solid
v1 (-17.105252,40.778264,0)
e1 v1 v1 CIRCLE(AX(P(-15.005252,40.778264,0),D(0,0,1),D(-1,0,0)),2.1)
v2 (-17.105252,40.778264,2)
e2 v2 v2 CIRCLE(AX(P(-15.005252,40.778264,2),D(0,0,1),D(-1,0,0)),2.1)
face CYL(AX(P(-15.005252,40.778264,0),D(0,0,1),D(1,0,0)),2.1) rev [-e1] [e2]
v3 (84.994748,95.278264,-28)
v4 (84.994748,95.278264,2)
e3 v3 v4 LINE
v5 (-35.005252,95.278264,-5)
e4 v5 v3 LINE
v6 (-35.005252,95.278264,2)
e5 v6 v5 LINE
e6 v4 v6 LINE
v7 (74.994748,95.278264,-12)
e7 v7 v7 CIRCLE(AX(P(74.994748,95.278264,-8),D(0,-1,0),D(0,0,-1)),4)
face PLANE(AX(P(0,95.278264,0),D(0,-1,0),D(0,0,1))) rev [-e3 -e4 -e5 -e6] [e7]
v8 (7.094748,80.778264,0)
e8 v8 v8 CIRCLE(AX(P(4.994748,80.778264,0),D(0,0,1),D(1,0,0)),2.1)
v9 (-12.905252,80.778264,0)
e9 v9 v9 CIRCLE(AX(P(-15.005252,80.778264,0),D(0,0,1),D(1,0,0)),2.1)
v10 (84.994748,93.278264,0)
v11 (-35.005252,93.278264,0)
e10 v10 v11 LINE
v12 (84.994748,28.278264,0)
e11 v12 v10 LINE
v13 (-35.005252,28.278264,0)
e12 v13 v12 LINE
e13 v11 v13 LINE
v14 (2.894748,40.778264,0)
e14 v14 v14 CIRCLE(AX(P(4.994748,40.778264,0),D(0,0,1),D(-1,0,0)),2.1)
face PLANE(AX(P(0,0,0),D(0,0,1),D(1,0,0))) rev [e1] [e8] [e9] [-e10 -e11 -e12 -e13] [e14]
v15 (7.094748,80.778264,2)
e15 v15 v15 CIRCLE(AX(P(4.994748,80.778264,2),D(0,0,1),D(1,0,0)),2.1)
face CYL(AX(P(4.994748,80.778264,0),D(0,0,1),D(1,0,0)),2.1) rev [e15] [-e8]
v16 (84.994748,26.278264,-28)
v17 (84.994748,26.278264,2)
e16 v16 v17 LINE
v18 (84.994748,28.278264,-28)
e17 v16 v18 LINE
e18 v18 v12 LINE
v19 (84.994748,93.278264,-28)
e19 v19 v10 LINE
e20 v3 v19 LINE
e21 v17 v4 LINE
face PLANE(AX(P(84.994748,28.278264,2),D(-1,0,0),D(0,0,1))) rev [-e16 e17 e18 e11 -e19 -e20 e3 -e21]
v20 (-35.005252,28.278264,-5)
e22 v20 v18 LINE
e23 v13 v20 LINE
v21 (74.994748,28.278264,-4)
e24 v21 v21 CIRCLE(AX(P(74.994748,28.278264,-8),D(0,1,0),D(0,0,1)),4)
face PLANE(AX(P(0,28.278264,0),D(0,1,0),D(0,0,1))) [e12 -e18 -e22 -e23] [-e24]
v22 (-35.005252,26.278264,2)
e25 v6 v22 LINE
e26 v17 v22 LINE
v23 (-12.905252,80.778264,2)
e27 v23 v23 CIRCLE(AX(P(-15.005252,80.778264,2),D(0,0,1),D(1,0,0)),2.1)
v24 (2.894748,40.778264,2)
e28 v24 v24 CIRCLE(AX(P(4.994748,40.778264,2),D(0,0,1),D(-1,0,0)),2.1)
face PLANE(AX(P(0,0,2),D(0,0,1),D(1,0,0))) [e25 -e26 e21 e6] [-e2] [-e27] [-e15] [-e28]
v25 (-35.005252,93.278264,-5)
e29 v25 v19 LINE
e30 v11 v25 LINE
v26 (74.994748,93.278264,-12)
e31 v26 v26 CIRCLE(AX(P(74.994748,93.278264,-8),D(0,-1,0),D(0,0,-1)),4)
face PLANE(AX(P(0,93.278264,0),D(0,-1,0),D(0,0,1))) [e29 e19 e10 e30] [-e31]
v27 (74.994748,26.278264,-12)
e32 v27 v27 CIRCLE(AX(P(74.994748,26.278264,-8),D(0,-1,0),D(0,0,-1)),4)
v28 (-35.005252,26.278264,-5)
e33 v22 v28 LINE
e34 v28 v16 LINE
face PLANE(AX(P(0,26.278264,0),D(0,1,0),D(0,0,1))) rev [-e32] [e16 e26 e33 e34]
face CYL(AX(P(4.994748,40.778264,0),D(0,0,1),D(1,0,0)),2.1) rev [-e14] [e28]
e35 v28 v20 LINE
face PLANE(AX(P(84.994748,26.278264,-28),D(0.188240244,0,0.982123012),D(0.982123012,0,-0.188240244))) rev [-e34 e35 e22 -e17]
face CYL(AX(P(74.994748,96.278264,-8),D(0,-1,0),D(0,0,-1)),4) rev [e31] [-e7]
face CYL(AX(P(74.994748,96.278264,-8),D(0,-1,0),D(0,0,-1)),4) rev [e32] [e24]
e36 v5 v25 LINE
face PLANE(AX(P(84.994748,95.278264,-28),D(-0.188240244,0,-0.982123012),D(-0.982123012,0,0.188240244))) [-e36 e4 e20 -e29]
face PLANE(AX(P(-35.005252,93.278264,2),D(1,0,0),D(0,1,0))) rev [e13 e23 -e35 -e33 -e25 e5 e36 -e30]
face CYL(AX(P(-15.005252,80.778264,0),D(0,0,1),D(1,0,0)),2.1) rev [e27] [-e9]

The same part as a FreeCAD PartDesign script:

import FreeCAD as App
import Part
import Sketcher
from FreeCAD import Vector

doc = App.newDocument("Part")
params = doc.addObject("Spreadsheet::Sheet", "Params")
for row, (alias, value) in enumerate([
    ("sketch1_width", "120 mm"),
    ("sketch1_height", "65 mm"),
    ("pad1_length", "2 mm"),
    ("sketch2_width", "120 mm"),
    ("sketch2_height", "7 mm"),
    ("sketch2_height2", "30 mm"),
    ("pad2_length", "2 mm"),
    ("sketch3_diameter", "4.2 mm"),
    ("pocket1_length", "2 mm"),
    ("sketch4_diameter", "8 mm"),
    ("pocket2_length", "70 mm"),
], start=1):
    params.set(f"A{row}", alias)
    params.set(f"B{row}", "=" + value)
    params.setAlias(f"B{row}", alias)

body = doc.addObject("PartDesign::Body", "Body")

sketch1 = body.newObject("Sketcher::SketchObject", "Sketch")
sketch1.AttachmentSupport = (doc.getObject("XY_Plane"), [""])
sketch1.MapMode = "FlatFace"
sketch1.addGeometry([
    Part.LineSegment(Vector(-35, 93, 0), Vector(-35, 28, 0)),
    Part.LineSegment(Vector(-35, 28, 0), Vector(85, 28, 0)),
    Part.LineSegment(Vector(85, 28, 0), Vector(85, 93, 0)),
    Part.LineSegment(Vector(85, 93, 0), Vector(-35, 93, 0)),
], False)
sketch1.addConstraint([
    Sketcher.Constraint("Coincident", 0, 2, 1, 1),
    Sketcher.Constraint("Coincident", 1, 2, 2, 1),
    Sketcher.Constraint("Coincident", 2, 2, 3, 1),
    Sketcher.Constraint("Coincident", 3, 2, 0, 1),
    Sketcher.Constraint("Vertical", 0),
    Sketcher.Constraint("Horizontal", 1),
    Sketcher.Constraint("Vertical", 2),
    Sketcher.Constraint("Horizontal", 3),
    Sketcher.Constraint("DistanceX", 1, 1, 1, 2, 120.0),
    Sketcher.Constraint("DistanceY", 0, 2, 0, 1, 65.0),
    Sketcher.Constraint("DistanceX", 0, 2, -1, 1, 35.005252),
    Sketcher.Constraint("DistanceY", -1, 1, 0, 2, 28.278264),
])
sketch1.setExpression("Constraints[8]", "Params.sketch1_width")
sketch1.setExpression("Constraints[9]", "Params.sketch1_height")
pad1 = body.newObject("PartDesign::Pad", "Pad")
pad1.Profile = sketch1
pad1.setExpression("Length", "Params.pad1_length")

sketch2 = body.newObject("Sketcher::SketchObject", "Sketch001")
sketch2.AttachmentSupport = (doc.getObject("XZ_Plane"), [""])
sketch2.MapMode = "FlatFace"
sketch2.AttachmentOffset = App.Placement(Vector(0, 0, -28.278264), App.Rotation())
sketch2.addGeometry([
    Part.LineSegment(Vector(-35, 2, 0), Vector(-35, -5, 0)),
    Part.LineSegment(Vector(-35, -5, 0), Vector(85, -28, 0)),
    Part.LineSegment(Vector(85, -28, 0), Vector(85, 2, 0)),
    Part.LineSegment(Vector(85, 2, 0), Vector(-35, 2, 0)),
], False)
sketch2.addConstraint([
    Sketcher.Constraint("Coincident", 0, 2, 1, 1),
    Sketcher.Constraint("Coincident", 1, 2, 2, 1),
    Sketcher.Constraint("Coincident", 2, 2, 3, 1),
    Sketcher.Constraint("Coincident", 3, 2, 0, 1),
    Sketcher.Constraint("Vertical", 0),
    Sketcher.Constraint("Vertical", 2),
    Sketcher.Constraint("Horizontal", 3),
    Sketcher.Constraint("DistanceX", 3, 2, 3, 1, 120.0),
    Sketcher.Constraint("DistanceY", 0, 2, 0, 1, 7.0),
    Sketcher.Constraint("DistanceY", 2, 1, 2, 2, 30.0),
    Sketcher.Constraint("DistanceY", 0, 2, -1, 1, 5.0),
    Sketcher.Constraint("DistanceX", 0, 2, -1, 1, 35.005252),
])
sketch2.setExpression("Constraints[7]", "Params.sketch2_width")
sketch2.setExpression("Constraints[8]", "Params.sketch2_height")
sketch2.setExpression("Constraints[9]", "Params.sketch2_height2")
pad2 = body.newObject("PartDesign::Pad", "Pad001")
pad2.Profile = sketch2
pad2.setExpression("Length", "Params.pad2_length")
doc.recompute()

datumplane = body.newObject("PartDesign::Plane", "DatumPlane")
datumplane.AttachmentSupport = (doc.getObject("XZ_Plane"), [""])
datumplane.MapMode = "FlatFace"
datumplane.AttachmentOffset = App.Placement(Vector(0, 0, -60.778264), App.Rotation())
mirrored = body.newObject("PartDesign::Mirrored", "Mirrored")
mirrored.Originals = [pad2]
mirrored.MirrorPlane = (datumplane, [""])
body.Tip = mirrored

sketch3 = body.newObject("Sketcher::SketchObject", "Sketch002")
sketch3.AttachmentSupport = (doc.getObject("XY_Plane"), [""])
sketch3.MapMode = "FlatFace"
sketch3.AttachmentOffset = App.Placement(Vector(0, 0, 2), App.Rotation())
sketch3.addGeometry([
    Part.Circle(Vector(-15, 80.8, 0), Vector(0, 0, 1), 2.1),
    Part.Circle(Vector(5, 80.8, 0), Vector(0, 0, 1), 2.1),
    Part.Circle(Vector(-15, 40.8, 0), Vector(0, 0, 1), 2.1),
    Part.Circle(Vector(5, 40.8, 0), Vector(0, 0, 1), 2.1),
], False)
sketch3.addConstraint([
    Sketcher.Constraint("Equal", 0, 1),
    Sketcher.Constraint("Equal", 1, 2),
    Sketcher.Constraint("Equal", 2, 3),
    Sketcher.Constraint("Horizontal", 0, 3, 1, 3),
    Sketcher.Constraint("Horizontal", 2, 3, 3, 3),
    Sketcher.Constraint("Vertical", 0, 3, 2, 3),
    Sketcher.Constraint("Vertical", 1, 3, 3, 3),
    Sketcher.Constraint("Diameter", 0, 4.2),
    Sketcher.Constraint("DistanceX", 0, 3, 1, 3, 20.0),
    Sketcher.Constraint("DistanceY", 2, 3, 0, 3, 40.0),
    Sketcher.Constraint("DistanceX", 0, 3, -1, 1, 15.005252),
    Sketcher.Constraint("DistanceY", -1, 1, 0, 3, 80.778264),
])
sketch3.setExpression("Constraints[7]", "Params.sketch3_diameter")
pocket1 = body.newObject("PartDesign::Pocket", "Pocket")
pocket1.Profile = sketch3
pocket1.setExpression("Length", "Params.pocket1_length")

sketch4 = body.newObject("Sketcher::SketchObject", "Sketch003")
sketch4.AttachmentSupport = (doc.getObject("XZ_Plane"), [""])
sketch4.MapMode = "FlatFace"
sketch4.AttachmentOffset = App.Placement(Vector(0, 0, -26.278264), App.Rotation())
sketch4.addGeometry(Part.Circle(Vector(75, -8, 0), Vector(0, 0, 1), 4), False)
sketch4.addConstraint([
    Sketcher.Constraint("Diameter", 0, 8.0),
    Sketcher.Constraint("DistanceY", 0, 3, -1, 1, 8.0),
    Sketcher.Constraint("DistanceX", -1, 1, 0, 3, 74.994748),
])
sketch4.setExpression("Constraints[0]", "Params.sketch4_diameter")
pocket2 = body.newObject("PartDesign::Pocket", "Pocket001")
pocket2.Profile = sketch4
pocket2.setExpression("Length", "Params.pocket2_length")

doc.recompute()
